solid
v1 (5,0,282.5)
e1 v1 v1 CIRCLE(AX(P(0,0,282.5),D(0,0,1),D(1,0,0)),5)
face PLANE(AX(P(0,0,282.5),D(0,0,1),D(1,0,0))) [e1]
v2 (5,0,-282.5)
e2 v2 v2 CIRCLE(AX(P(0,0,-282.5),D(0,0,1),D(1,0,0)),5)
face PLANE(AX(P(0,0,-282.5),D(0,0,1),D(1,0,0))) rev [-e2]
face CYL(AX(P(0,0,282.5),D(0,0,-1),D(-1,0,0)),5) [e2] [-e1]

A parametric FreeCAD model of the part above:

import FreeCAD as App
import Part
import Sketcher

V = App.Vector
Q = App.Units.Quantity

doc = App.newDocument("Part")
params = doc.addObject("Spreadsheet::Sheet", "Params")
for row, (alias, value) in enumerate([
    ("sketch1_diameter", "10 mm"),
    ("pad1_length", "565 mm"),
], start=1):
    params.set(f"A{row}", alias)
    params.set(f"B{row}", "=" + value)
    params.setAlias(f"B{row}", alias)

body = doc.addObject("PartDesign::Body", "Body")

sketch1 = body.newObject("Sketcher::SketchObject", "Sketch")
sketch1.AttachmentSupport = (doc.getObject("XY_Plane"), [""])
sketch1.MapMode = "FlatFace"
sketch1.addGeometry(Part.Circle(V(0, 0, 0), V(0, 0, 1), 5), False)
sketch1.addConstraint([
    Sketcher.Constraint("Coincident", 0, 3, -1, 1),
    Sketcher.Constraint("Diameter", 0, Q("10 mm")),
])
sketch1.setExpression("Constraints[1]", "Params.sketch1_diameter")
pad1 = body.newObject("PartDesign::Pad", "Pad")
pad1.Profile = sketch1
pad1.setExpression("Length", "Params.pad1_length")
pad1.Midplane = True

doc.recompute()
